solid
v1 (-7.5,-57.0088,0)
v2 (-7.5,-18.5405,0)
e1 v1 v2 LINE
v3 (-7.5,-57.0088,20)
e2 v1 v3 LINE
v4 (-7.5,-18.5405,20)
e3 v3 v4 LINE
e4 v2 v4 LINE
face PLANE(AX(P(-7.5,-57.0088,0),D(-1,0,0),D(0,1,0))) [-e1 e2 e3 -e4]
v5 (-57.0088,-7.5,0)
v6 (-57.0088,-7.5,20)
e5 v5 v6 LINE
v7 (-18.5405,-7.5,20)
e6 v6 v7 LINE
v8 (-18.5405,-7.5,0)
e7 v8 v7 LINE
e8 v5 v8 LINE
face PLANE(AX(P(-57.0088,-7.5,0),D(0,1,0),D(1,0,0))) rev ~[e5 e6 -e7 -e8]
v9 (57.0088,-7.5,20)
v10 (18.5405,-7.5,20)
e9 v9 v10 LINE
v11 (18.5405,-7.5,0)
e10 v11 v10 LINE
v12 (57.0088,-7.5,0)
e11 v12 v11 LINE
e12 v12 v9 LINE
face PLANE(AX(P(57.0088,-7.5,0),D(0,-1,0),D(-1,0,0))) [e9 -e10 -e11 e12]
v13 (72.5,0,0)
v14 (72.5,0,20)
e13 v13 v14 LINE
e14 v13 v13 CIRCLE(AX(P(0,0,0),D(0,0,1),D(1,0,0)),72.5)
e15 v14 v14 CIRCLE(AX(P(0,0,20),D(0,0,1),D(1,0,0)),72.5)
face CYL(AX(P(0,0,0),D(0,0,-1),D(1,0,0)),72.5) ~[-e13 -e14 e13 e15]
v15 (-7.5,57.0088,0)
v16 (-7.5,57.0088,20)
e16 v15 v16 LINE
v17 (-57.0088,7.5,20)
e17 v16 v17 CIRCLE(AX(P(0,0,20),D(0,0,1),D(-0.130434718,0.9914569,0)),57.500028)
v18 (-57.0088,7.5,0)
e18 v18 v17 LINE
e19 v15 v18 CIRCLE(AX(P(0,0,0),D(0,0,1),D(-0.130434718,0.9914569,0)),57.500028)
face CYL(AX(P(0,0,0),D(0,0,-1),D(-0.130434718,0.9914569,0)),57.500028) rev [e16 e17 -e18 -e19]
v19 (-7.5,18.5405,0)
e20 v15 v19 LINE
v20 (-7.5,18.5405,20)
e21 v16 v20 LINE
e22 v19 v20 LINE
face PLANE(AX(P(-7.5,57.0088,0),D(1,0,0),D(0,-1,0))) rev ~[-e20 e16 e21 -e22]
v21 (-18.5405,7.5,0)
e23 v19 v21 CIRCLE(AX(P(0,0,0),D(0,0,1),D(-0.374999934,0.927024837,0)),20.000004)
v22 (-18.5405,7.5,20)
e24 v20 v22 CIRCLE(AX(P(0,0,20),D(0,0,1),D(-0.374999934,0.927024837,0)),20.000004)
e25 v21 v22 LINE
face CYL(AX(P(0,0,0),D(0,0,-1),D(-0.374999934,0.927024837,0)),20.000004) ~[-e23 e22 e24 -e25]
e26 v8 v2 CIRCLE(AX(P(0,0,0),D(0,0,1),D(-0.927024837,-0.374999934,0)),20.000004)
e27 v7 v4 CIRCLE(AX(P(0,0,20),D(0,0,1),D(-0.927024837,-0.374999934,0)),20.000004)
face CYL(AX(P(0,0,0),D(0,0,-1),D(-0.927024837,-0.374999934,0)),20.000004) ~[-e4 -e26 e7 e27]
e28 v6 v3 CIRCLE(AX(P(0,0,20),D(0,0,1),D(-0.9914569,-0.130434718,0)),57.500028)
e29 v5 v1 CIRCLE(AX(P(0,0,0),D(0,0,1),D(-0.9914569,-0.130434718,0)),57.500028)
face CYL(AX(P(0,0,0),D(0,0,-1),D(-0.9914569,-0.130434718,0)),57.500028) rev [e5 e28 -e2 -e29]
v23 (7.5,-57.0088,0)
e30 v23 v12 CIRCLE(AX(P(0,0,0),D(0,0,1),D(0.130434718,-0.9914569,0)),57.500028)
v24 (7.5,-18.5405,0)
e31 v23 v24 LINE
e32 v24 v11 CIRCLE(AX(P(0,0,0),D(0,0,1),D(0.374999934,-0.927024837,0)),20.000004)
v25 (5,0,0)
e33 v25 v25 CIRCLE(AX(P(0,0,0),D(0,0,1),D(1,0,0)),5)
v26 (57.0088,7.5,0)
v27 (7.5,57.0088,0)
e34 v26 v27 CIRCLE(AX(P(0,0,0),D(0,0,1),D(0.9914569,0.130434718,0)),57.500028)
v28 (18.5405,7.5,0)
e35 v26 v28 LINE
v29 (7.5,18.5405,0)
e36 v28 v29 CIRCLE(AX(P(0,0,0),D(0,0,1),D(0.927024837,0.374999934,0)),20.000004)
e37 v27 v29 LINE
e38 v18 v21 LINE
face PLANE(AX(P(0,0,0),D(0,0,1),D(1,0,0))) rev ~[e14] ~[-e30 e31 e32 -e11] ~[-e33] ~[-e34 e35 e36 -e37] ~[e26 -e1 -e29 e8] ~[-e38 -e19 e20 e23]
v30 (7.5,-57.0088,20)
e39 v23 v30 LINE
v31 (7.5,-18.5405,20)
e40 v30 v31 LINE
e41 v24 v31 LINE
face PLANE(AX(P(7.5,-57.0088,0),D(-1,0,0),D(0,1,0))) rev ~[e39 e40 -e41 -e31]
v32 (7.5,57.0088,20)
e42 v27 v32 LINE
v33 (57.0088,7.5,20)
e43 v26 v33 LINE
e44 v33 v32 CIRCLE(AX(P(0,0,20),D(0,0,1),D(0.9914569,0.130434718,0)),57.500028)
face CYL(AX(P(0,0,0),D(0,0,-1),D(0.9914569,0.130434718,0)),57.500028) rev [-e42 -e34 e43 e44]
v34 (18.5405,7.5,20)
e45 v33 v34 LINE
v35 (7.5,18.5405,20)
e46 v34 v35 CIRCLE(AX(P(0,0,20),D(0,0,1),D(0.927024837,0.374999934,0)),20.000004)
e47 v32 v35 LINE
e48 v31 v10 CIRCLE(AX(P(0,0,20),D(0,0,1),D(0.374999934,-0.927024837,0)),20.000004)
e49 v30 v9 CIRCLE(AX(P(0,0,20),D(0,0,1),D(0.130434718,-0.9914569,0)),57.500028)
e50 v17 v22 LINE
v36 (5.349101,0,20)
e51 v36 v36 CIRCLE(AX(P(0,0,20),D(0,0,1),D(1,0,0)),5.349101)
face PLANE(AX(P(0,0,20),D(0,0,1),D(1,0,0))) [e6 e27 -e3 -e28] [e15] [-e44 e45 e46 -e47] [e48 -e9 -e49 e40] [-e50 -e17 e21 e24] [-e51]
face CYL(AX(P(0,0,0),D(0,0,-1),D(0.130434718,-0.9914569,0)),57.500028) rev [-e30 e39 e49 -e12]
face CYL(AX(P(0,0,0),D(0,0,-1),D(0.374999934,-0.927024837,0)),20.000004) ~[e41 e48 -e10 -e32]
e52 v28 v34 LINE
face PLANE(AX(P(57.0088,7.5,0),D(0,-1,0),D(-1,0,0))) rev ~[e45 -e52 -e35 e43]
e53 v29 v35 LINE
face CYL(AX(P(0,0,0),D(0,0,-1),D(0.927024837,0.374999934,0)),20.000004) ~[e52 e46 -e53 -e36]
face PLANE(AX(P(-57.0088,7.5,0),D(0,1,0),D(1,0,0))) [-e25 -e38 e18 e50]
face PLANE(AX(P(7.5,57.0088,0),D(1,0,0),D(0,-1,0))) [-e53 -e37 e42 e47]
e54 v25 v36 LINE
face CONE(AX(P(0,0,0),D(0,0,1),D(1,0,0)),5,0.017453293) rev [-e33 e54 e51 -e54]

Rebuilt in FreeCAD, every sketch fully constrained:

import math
import FreeCAD as App
import Part
import Sketcher

V = App.Vector

doc = App.newDocument("Part")
body = doc.addObject("PartDesign::Body", "Body")

sketch1 = doc.addObject("Sketcher::SketchObject", "Sketch")
body.addObject(sketch1)
sketch1.AttachmentSupport = (doc.XY_Plane, [""])
sketch1.MapMode = "FlatFace"
sketch1.addGeometry(Part.Circle(V(0, 0, 0), V(0, 0, 1), 72), False)
sketch1.addConstraint(Sketcher.Constraint("Coincident", 0, 3, -1, 1))
sketch1.addConstraint(Sketcher.Constraint("Diameter", 0, 145.0))
pad1 = doc.addObject("PartDesign::Pad", "Pad")
body.addObject(pad1)
pad1.Profile = sketch1
pad1.Length = 20

sketch2 = doc.addObject("Sketcher::SketchObject", "Sketch001")
body.addObject(sketch2)
sketch2.AttachmentSupport = (doc.XY_Plane, [""])
sketch2.MapMode = "FlatFace"
sketch2.addGeometry(Part.LineSegment(V(-8, 19, 0), V(-8, 57, 0)), False)
sketch2.addGeometry(Part.ArcOfCircle(Part.Circle(V(0, 0, 0), V(0, 0, 1), 58), math.radians(97), math.radians(173)), False)
sketch2.addGeometry(Part.LineSegment(V(-57, 8, 0), V(-19, 8, 0)), False)
sketch2.addGeometry(Part.ArcOfCircle(Part.Circle(V(0, 0, 0), V(0, 0, 1), 20), math.radians(112), math.radians(158)), False)
sketch2.addConstraint(Sketcher.Constraint("Coincident", 0, 2, 1, 1))
sketch2.addConstraint(Sketcher.Constraint("Coincident", 1, 2, 2, 1))
sketch2.addConstraint(Sketcher.Constraint("Coincident", 2, 2, 3, 2))
sketch2.addConstraint(Sketcher.Constraint("Coincident", 3, 1, 0, 1))
sketch2.addConstraint(Sketcher.Constraint("Vertical", 0))
sketch2.addConstraint(Sketcher.Constraint("Horizontal", 2))
sketch2.addConstraint(Sketcher.Constraint("Coincident", 1, 3, -1, 1))
sketch2.addConstraint(Sketcher.Constraint("Coincident", 3, 3, -1, 1))
sketch2.addConstraint(Sketcher.Constraint("Equal", 2, 0))
sketch2.addConstraint(Sketcher.Constraint("Radius", 3, 20.0))
sketch2.addConstraint(Sketcher.Constraint("DistanceX", 0, 2, -1, 1, 7.5))
sketch2.addConstraint(Sketcher.Constraint("Radius", 1, 57.5))
pocket1 = doc.addObject("PartDesign::Pocket", "Pocket")
body.addObject(pocket1)
pocket1.Profile = sketch2
pocket1.Length = 20
pocket1.Reversed = True

sketch3 = doc.addObject("Sketcher::SketchObject", "Sketch002")
body.addObject(sketch3)
sketch3.AttachmentSupport = (doc.XY_Plane, [""])
sketch3.MapMode = "FlatFace"
sketch3.addGeometry(Part.Circle(V(0, 0, 0), V(0, 0, 1), 5), False)
sketch3.addConstraint(Sketcher.Constraint("Coincident", 0, 3, -1, 1))
sketch3.addConstraint(Sketcher.Constraint("Diameter", 0, 10.0))
pocket2 = doc.addObject("PartDesign::Pocket", "Pocket001")
body.addObject(pocket2)
pocket2.Profile = sketch3
pocket2.Length = 20
pocket2.Reversed = True
pocket2.TaperAngle = 1
doc.recompute()

polarpattern = doc.addObject("PartDesign::PolarPattern", "PolarPattern")
body.addObject(polarpattern)
polarpattern.Originals = [pocket1]
polarpattern.Axis = (doc.Z_Axis, [""])
polarpattern.Angle = 360
polarpattern.Occurrences = 4
body.Tip = polarpattern

doc.recompute()
